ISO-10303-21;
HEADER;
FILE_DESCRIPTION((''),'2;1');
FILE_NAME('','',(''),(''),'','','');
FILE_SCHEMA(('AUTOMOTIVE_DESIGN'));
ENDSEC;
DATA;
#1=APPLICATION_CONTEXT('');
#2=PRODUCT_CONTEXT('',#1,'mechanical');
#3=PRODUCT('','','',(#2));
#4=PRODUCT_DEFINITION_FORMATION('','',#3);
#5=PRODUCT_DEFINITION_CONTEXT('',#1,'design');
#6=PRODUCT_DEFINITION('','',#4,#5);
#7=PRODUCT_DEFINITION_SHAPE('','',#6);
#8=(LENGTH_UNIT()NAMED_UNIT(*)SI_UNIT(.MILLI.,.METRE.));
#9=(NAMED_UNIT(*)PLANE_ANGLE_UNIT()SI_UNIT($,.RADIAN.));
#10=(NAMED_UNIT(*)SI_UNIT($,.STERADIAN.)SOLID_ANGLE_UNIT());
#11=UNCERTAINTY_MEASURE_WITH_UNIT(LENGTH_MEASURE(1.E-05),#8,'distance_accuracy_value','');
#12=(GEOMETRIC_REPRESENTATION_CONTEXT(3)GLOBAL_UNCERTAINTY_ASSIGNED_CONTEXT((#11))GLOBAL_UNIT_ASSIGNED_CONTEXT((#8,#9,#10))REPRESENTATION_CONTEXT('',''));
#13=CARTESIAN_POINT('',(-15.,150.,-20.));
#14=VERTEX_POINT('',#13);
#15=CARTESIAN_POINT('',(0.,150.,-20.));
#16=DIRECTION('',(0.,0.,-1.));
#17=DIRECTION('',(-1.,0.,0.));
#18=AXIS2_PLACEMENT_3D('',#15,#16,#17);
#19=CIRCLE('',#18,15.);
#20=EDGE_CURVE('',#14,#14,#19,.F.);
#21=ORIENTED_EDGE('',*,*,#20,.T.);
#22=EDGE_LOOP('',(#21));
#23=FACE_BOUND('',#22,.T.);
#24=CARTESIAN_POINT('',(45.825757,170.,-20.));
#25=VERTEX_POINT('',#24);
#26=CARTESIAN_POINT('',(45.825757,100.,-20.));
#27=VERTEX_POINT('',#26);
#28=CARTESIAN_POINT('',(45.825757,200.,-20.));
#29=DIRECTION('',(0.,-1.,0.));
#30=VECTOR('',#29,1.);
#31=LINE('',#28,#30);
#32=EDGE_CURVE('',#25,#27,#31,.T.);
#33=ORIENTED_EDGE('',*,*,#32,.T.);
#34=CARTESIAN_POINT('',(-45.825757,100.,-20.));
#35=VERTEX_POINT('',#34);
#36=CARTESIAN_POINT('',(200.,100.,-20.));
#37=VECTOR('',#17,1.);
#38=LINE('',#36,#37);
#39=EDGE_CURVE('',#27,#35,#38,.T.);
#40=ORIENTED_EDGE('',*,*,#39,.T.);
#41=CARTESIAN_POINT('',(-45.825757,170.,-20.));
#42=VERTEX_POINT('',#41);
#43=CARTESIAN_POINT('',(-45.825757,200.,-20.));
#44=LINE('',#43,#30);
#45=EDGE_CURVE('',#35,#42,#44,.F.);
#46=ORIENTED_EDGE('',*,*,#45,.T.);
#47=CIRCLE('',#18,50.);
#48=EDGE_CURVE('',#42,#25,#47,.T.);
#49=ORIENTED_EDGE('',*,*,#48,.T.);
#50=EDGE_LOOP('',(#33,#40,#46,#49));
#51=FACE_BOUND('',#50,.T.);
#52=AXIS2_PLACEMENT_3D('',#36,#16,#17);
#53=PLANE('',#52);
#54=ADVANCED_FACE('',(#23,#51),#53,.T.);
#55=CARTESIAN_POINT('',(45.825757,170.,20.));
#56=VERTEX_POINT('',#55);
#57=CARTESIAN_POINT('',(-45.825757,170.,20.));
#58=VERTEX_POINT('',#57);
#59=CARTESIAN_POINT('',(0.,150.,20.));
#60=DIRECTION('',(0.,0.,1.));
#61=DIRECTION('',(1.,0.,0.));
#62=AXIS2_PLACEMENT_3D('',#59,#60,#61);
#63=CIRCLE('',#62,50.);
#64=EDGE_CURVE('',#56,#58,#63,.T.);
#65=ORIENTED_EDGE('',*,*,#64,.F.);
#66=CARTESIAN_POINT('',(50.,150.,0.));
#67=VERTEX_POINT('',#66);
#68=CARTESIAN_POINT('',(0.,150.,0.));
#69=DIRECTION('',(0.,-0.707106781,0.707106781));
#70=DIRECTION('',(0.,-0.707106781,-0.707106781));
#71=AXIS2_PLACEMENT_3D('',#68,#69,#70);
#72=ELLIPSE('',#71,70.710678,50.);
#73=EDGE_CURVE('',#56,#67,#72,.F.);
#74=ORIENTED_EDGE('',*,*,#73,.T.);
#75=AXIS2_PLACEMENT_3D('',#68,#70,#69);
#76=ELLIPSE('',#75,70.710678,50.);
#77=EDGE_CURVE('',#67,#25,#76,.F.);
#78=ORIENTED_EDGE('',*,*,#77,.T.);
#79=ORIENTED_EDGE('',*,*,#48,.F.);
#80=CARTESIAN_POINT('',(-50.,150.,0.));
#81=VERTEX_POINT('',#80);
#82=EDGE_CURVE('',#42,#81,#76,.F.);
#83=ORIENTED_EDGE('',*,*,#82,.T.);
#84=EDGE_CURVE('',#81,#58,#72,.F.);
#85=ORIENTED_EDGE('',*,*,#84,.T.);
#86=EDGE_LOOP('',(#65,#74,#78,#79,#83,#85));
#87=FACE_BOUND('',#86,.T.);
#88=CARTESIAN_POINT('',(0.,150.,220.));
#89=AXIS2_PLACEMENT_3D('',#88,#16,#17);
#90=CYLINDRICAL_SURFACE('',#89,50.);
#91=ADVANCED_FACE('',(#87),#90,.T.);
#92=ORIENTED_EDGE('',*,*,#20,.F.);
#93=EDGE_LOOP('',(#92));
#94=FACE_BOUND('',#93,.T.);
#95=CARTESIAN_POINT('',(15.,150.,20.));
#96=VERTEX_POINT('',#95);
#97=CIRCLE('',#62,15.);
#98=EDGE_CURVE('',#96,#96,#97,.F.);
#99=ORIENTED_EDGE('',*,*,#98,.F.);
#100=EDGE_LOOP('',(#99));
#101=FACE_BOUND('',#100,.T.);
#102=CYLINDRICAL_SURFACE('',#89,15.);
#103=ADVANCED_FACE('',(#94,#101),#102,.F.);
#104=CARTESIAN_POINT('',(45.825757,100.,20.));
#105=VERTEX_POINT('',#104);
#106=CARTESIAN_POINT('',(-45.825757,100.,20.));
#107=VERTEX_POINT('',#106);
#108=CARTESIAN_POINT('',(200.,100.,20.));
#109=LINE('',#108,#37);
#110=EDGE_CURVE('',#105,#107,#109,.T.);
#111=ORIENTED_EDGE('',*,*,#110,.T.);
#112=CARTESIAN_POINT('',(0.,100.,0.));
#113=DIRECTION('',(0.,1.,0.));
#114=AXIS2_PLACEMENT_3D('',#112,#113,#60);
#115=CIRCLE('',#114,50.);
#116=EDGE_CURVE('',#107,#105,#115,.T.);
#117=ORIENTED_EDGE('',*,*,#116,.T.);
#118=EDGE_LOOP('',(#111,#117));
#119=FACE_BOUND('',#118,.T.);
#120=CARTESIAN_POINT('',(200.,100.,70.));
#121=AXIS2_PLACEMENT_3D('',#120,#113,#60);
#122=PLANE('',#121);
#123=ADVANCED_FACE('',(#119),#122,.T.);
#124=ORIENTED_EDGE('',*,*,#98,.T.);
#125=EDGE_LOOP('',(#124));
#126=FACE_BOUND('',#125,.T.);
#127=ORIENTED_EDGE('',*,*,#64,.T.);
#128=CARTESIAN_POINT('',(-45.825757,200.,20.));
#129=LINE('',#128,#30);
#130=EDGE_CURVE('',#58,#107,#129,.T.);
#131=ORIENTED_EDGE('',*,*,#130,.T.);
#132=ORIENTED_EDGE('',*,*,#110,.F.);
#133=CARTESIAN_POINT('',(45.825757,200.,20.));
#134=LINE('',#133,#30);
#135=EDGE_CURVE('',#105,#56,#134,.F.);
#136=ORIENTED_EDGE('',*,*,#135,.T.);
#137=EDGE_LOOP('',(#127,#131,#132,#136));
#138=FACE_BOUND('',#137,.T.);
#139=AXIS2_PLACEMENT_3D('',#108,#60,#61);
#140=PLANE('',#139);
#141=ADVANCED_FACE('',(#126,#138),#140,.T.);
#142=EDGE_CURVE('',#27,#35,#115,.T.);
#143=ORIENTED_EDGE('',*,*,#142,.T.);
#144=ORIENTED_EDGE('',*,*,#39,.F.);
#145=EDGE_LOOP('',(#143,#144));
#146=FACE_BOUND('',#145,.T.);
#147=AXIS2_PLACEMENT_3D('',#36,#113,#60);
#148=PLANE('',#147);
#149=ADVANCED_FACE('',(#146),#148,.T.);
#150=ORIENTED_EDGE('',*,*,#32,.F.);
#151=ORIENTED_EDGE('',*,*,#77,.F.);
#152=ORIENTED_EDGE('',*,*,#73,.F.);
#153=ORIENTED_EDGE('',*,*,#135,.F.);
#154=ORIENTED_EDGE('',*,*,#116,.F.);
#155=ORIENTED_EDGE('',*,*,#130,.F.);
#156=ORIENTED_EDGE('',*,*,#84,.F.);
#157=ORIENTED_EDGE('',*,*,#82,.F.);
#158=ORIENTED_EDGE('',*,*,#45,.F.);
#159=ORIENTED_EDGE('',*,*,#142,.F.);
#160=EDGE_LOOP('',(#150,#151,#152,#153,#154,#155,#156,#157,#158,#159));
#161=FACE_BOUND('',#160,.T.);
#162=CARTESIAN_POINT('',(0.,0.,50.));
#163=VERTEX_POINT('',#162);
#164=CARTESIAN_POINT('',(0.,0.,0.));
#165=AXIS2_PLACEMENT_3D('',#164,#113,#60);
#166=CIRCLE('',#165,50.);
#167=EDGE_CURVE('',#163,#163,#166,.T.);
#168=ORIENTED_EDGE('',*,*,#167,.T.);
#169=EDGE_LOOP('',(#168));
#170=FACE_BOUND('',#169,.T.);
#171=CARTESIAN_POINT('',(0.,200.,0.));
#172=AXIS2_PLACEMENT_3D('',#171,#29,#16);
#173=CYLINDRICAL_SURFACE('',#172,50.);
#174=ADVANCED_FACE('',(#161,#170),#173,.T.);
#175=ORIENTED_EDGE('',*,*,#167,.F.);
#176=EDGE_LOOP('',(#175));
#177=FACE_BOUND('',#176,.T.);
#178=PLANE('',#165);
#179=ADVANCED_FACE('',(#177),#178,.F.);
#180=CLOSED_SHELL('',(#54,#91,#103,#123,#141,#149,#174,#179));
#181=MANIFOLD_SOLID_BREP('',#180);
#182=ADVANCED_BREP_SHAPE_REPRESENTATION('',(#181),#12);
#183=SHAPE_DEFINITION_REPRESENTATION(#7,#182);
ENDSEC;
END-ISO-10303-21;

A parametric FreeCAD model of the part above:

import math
import FreeCAD as App
import Part
import Sketcher
Q = App.Units.Quantity

doc = App.newDocument("Part")
body = doc.addObject("PartDesign::Body", "Body")

sketch1 = body.newObject("Sketcher::SketchObject", "Sketch")
sketch1.AttachmentSupport = (doc.getObject("XZ_Plane"), [""])
sketch1.MapMode = "FlatFace"
sketch1.addGeometry(Part.Circle(App.Vector(0, 0, 0), App.Vector(0, 0, 1), 50), False)
sketch1.addConstraint(Sketcher.Constraint("Coincident", 0, 3, -1, 1))
sketch1.addConstraint(Sketcher.Constraint("Diameter", 0, Q("100 mm")))
pad1 = body.newObject("PartDesign::Pad", "Pad")
pad1.Profile = sketch1
pad1.Length = 200
pad1.Reversed = True

sketch2 = body.newObject("Sketcher::SketchObject", "Sketch001")
sketch2.AttachmentSupport = (doc.getObject("YZ_Plane"), [""])
sketch2.MapMode = "FlatFace"
sketch2.addGeometry(Part.LineSegment(App.Vector(250, -70, 0), App.Vector(250, 70, 0)), False)
sketch2.addGeometry(Part.LineSegment(App.Vector(250, 70, 0), App.Vector(100, 70, 0)), False)
sketch2.addGeometry(Part.LineSegment(App.Vector(100, 70, 0), App.Vector(100, 20, 0)), False)
sketch2.addGeometry(Part.LineSegment(App.Vector(100, 20, 0), App.Vector(240, 20, 0)), False)
sketch2.addGeometry(Part.LineSegment(App.Vector(240, 20, 0), App.Vector(240, -20, 0)), False)
sketch2.addGeometry(Part.LineSegment(App.Vector(240, -20, 0), App.Vector(100, -20, 0)), False)
sketch2.addGeometry(Part.LineSegment(App.Vector(100, -20, 0), App.Vector(100, -70, 0)), False)
sketch2.addGeometry(Part.LineSegment(App.Vector(100, -70, 0), App.Vector(250, -70, 0)), False)
sketch2.addConstraint(Sketcher.Constraint("Coincident", 0, 2, 1, 1))
sketch2.addConstraint(Sketcher.Constraint("Coincident", 1, 2, 2, 1))
sketch2.addConstraint(Sketcher.Constraint("Coincident", 2, 2, 3, 1))
sketch2.addConstraint(Sketcher.Constraint("Coincident", 3, 2, 4, 1))
sketch2.addConstraint(Sketcher.Constraint("Coincident", 4, 2, 5, 1))
sketch2.addConstraint(Sketcher.Constraint("Coincident", 5, 2, 6, 1))
sketch2.addConstraint(Sketcher.Constraint("Coincident", 6, 2, 7, 1))
sketch2.addConstraint(Sketcher.Constraint("Coincident", 7, 2, 0, 1))
sketch2.addConstraint(Sketcher.Constraint("Vertical", 0))
sketch2.addConstraint(Sketcher.Constraint("Horizontal", 1))
sketch2.addConstraint(Sketcher.Constraint("Vertical", 2))
sketch2.addConstraint(Sketcher.Constraint("Horizontal", 3))
sketch2.addConstraint(Sketcher.Constraint("Vertical", 4))
sketch2.addConstraint(Sketcher.Constraint("Horizontal", 5))
sketch2.addConstraint(Sketcher.Constraint("Vertical", 6))
sketch2.addConstraint(Sketcher.Constraint("Horizontal", 7))
sketch2.addConstraint(Sketcher.Constraint("Symmetric", 2, 2, 5, 2, -1))
sketch2.addConstraint(Sketcher.Constraint("Equal", 5, 0))
sketch2.addConstraint(Sketcher.Constraint("Equal", 2, 6))
sketch2.addConstraint(Sketcher.Constraint("DistanceX", 1, 2, 1, 1, Q("150 mm")))
sketch2.addConstraint(Sketcher.Constraint("DistanceX", 3, 1, 3, 2, Q("140 mm")))
sketch2.addConstraint(Sketcher.Constraint("DistanceY", 2, 2, 2, 1, Q("50 mm")))
sketch2.addConstraint(Sketcher.Constraint("DistanceX", -1, 1, 0, 2, Q("250 mm")))
pocket1 = body.newObject("PartDesign::Pocket", "Pocket")
pocket1.Profile = sketch2
pocket1.Type = "ThroughAll"
pocket1.Midplane = True

sketch3 = body.newObject("Sketcher::SketchObject", "Sketch002")
sketch3.AttachmentSupport = (doc.getObject("XY_Plane"), [""])
sketch3.MapMode = "FlatFace"
sketch3.AttachmentOffset = App.Placement(App.Vector(0, 0, 20), App.Rotation())
sketch3.addGeometry(Part.LineSegment(App.Vector(50, 150, 0), App.Vector(108, 150, 0)), False)
sketch3.addGeometry(Part.LineSegment(App.Vector(108, 150, 0), App.Vector(108, 270, 0)), False)
sketch3.addGeometry(Part.LineSegment(App.Vector(108, 270, 0), App.Vector(-86, 270, 0)), False)
sketch3.addGeometry(Part.LineSegment(App.Vector(-86, 270, 0), App.Vector(-86, 150, 0)), False)
sketch3.addGeometry(Part.LineSegment(App.Vector(-86, 150, 0), App.Vector(-50, 150, 0)), False)
sketch3.addGeometry(Part.ArcOfCircle(Part.Circle(App.Vector(0, 150, 0), App.Vector(0, 0, 1), 50), math.radians(0), math.radians(180)), False)
sketch3.addConstraint(Sketcher.Constraint("Coincident", 0, 2, 1, 1))
sketch3.addConstraint(Sketcher.Constraint("Coincident", 1, 2, 2, 1))
sketch3.addConstraint(Sketcher.Constraint("Coincident", 2, 2, 3, 1))
sketch3.addConstraint(Sketcher.Constraint("Coincident", 3, 2, 4, 1))
sketch3.addConstraint(Sketcher.Constraint("Coincident", 4, 2, 5, 2))
sketch3.addConstraint(Sketcher.Constraint("Coincident", 5, 1, 0, 1))
sketch3.addConstraint(Sketcher.Constraint("Horizontal", 0))
sketch3.addConstraint(Sketcher.Constraint("Vertical", 1))
sketch3.addConstraint(Sketcher.Constraint("Horizontal", 2))
sketch3.addConstraint(Sketcher.Constraint("Vertical", 3))
sketch3.addConstraint(Sketcher.Constraint("Horizontal", 4))
sketch3.addConstraint(Sketcher.Constraint("Symmetric", 4, 2, 5, 1, -2))
sketch3.addConstraint(Sketcher.Constraint("Horizontal", 5, 3, 0, 2))
sketch3.addConstraint(Sketcher.Constraint("Radius", 5, Q("50 mm")))
sketch3.addConstraint(Sketcher.Constraint("DistanceY", 1, 1, 1, 2, Q("120 mm")))
sketch3.addConstraint(Sketcher.Constraint("DistanceY", -1, 1, 5, 3, Q("150 mm")))
sketch3.addConstraint(Sketcher.Constraint("DistanceX", 4, 1, 4, 2, Q("36.328849 mm")))
sketch3.addConstraint(Sketcher.Constraint("DistanceX", 0, 1, 0, 2, Q("58.180367 mm")))
pocket2 = body.newObject("PartDesign::Pocket", "Pocket001")
pocket2.Profile = sketch3
pocket2.Type = "ThroughAll"
pocket2.Midplane = True

sketch4 = body.newObject("Sketcher::SketchObject", "Sketch003")
sketch4.AttachmentSupport = (doc.getObject("XY_Plane"), [""])
sketch4.MapMode = "FlatFace"
sketch4.AttachmentOffset = App.Placement(App.Vector(0, 0, 20), App.Rotation())
sketch4.addGeometry(Part.Circle(App.Vector(0, 150, 0), App.Vector(0, 0, 1), 15), False)
sketch4.addConstraint(Sketcher.Constraint("PointOnObject", 0, 3, -2))
sketch4.addConstraint(Sketcher.Constraint("Diameter", 0, Q("30 mm")))
sketch4.addConstraint(Sketcher.Constraint("DistanceY", -1, 1, 0, 3, Q("150 mm")))
pocket3 = body.newObject("PartDesign::Pocket", "Pocket002")
pocket3.Profile = sketch4
pocket3.Type = "ThroughAll"
pocket3.Midplane = True

doc.recompute()
